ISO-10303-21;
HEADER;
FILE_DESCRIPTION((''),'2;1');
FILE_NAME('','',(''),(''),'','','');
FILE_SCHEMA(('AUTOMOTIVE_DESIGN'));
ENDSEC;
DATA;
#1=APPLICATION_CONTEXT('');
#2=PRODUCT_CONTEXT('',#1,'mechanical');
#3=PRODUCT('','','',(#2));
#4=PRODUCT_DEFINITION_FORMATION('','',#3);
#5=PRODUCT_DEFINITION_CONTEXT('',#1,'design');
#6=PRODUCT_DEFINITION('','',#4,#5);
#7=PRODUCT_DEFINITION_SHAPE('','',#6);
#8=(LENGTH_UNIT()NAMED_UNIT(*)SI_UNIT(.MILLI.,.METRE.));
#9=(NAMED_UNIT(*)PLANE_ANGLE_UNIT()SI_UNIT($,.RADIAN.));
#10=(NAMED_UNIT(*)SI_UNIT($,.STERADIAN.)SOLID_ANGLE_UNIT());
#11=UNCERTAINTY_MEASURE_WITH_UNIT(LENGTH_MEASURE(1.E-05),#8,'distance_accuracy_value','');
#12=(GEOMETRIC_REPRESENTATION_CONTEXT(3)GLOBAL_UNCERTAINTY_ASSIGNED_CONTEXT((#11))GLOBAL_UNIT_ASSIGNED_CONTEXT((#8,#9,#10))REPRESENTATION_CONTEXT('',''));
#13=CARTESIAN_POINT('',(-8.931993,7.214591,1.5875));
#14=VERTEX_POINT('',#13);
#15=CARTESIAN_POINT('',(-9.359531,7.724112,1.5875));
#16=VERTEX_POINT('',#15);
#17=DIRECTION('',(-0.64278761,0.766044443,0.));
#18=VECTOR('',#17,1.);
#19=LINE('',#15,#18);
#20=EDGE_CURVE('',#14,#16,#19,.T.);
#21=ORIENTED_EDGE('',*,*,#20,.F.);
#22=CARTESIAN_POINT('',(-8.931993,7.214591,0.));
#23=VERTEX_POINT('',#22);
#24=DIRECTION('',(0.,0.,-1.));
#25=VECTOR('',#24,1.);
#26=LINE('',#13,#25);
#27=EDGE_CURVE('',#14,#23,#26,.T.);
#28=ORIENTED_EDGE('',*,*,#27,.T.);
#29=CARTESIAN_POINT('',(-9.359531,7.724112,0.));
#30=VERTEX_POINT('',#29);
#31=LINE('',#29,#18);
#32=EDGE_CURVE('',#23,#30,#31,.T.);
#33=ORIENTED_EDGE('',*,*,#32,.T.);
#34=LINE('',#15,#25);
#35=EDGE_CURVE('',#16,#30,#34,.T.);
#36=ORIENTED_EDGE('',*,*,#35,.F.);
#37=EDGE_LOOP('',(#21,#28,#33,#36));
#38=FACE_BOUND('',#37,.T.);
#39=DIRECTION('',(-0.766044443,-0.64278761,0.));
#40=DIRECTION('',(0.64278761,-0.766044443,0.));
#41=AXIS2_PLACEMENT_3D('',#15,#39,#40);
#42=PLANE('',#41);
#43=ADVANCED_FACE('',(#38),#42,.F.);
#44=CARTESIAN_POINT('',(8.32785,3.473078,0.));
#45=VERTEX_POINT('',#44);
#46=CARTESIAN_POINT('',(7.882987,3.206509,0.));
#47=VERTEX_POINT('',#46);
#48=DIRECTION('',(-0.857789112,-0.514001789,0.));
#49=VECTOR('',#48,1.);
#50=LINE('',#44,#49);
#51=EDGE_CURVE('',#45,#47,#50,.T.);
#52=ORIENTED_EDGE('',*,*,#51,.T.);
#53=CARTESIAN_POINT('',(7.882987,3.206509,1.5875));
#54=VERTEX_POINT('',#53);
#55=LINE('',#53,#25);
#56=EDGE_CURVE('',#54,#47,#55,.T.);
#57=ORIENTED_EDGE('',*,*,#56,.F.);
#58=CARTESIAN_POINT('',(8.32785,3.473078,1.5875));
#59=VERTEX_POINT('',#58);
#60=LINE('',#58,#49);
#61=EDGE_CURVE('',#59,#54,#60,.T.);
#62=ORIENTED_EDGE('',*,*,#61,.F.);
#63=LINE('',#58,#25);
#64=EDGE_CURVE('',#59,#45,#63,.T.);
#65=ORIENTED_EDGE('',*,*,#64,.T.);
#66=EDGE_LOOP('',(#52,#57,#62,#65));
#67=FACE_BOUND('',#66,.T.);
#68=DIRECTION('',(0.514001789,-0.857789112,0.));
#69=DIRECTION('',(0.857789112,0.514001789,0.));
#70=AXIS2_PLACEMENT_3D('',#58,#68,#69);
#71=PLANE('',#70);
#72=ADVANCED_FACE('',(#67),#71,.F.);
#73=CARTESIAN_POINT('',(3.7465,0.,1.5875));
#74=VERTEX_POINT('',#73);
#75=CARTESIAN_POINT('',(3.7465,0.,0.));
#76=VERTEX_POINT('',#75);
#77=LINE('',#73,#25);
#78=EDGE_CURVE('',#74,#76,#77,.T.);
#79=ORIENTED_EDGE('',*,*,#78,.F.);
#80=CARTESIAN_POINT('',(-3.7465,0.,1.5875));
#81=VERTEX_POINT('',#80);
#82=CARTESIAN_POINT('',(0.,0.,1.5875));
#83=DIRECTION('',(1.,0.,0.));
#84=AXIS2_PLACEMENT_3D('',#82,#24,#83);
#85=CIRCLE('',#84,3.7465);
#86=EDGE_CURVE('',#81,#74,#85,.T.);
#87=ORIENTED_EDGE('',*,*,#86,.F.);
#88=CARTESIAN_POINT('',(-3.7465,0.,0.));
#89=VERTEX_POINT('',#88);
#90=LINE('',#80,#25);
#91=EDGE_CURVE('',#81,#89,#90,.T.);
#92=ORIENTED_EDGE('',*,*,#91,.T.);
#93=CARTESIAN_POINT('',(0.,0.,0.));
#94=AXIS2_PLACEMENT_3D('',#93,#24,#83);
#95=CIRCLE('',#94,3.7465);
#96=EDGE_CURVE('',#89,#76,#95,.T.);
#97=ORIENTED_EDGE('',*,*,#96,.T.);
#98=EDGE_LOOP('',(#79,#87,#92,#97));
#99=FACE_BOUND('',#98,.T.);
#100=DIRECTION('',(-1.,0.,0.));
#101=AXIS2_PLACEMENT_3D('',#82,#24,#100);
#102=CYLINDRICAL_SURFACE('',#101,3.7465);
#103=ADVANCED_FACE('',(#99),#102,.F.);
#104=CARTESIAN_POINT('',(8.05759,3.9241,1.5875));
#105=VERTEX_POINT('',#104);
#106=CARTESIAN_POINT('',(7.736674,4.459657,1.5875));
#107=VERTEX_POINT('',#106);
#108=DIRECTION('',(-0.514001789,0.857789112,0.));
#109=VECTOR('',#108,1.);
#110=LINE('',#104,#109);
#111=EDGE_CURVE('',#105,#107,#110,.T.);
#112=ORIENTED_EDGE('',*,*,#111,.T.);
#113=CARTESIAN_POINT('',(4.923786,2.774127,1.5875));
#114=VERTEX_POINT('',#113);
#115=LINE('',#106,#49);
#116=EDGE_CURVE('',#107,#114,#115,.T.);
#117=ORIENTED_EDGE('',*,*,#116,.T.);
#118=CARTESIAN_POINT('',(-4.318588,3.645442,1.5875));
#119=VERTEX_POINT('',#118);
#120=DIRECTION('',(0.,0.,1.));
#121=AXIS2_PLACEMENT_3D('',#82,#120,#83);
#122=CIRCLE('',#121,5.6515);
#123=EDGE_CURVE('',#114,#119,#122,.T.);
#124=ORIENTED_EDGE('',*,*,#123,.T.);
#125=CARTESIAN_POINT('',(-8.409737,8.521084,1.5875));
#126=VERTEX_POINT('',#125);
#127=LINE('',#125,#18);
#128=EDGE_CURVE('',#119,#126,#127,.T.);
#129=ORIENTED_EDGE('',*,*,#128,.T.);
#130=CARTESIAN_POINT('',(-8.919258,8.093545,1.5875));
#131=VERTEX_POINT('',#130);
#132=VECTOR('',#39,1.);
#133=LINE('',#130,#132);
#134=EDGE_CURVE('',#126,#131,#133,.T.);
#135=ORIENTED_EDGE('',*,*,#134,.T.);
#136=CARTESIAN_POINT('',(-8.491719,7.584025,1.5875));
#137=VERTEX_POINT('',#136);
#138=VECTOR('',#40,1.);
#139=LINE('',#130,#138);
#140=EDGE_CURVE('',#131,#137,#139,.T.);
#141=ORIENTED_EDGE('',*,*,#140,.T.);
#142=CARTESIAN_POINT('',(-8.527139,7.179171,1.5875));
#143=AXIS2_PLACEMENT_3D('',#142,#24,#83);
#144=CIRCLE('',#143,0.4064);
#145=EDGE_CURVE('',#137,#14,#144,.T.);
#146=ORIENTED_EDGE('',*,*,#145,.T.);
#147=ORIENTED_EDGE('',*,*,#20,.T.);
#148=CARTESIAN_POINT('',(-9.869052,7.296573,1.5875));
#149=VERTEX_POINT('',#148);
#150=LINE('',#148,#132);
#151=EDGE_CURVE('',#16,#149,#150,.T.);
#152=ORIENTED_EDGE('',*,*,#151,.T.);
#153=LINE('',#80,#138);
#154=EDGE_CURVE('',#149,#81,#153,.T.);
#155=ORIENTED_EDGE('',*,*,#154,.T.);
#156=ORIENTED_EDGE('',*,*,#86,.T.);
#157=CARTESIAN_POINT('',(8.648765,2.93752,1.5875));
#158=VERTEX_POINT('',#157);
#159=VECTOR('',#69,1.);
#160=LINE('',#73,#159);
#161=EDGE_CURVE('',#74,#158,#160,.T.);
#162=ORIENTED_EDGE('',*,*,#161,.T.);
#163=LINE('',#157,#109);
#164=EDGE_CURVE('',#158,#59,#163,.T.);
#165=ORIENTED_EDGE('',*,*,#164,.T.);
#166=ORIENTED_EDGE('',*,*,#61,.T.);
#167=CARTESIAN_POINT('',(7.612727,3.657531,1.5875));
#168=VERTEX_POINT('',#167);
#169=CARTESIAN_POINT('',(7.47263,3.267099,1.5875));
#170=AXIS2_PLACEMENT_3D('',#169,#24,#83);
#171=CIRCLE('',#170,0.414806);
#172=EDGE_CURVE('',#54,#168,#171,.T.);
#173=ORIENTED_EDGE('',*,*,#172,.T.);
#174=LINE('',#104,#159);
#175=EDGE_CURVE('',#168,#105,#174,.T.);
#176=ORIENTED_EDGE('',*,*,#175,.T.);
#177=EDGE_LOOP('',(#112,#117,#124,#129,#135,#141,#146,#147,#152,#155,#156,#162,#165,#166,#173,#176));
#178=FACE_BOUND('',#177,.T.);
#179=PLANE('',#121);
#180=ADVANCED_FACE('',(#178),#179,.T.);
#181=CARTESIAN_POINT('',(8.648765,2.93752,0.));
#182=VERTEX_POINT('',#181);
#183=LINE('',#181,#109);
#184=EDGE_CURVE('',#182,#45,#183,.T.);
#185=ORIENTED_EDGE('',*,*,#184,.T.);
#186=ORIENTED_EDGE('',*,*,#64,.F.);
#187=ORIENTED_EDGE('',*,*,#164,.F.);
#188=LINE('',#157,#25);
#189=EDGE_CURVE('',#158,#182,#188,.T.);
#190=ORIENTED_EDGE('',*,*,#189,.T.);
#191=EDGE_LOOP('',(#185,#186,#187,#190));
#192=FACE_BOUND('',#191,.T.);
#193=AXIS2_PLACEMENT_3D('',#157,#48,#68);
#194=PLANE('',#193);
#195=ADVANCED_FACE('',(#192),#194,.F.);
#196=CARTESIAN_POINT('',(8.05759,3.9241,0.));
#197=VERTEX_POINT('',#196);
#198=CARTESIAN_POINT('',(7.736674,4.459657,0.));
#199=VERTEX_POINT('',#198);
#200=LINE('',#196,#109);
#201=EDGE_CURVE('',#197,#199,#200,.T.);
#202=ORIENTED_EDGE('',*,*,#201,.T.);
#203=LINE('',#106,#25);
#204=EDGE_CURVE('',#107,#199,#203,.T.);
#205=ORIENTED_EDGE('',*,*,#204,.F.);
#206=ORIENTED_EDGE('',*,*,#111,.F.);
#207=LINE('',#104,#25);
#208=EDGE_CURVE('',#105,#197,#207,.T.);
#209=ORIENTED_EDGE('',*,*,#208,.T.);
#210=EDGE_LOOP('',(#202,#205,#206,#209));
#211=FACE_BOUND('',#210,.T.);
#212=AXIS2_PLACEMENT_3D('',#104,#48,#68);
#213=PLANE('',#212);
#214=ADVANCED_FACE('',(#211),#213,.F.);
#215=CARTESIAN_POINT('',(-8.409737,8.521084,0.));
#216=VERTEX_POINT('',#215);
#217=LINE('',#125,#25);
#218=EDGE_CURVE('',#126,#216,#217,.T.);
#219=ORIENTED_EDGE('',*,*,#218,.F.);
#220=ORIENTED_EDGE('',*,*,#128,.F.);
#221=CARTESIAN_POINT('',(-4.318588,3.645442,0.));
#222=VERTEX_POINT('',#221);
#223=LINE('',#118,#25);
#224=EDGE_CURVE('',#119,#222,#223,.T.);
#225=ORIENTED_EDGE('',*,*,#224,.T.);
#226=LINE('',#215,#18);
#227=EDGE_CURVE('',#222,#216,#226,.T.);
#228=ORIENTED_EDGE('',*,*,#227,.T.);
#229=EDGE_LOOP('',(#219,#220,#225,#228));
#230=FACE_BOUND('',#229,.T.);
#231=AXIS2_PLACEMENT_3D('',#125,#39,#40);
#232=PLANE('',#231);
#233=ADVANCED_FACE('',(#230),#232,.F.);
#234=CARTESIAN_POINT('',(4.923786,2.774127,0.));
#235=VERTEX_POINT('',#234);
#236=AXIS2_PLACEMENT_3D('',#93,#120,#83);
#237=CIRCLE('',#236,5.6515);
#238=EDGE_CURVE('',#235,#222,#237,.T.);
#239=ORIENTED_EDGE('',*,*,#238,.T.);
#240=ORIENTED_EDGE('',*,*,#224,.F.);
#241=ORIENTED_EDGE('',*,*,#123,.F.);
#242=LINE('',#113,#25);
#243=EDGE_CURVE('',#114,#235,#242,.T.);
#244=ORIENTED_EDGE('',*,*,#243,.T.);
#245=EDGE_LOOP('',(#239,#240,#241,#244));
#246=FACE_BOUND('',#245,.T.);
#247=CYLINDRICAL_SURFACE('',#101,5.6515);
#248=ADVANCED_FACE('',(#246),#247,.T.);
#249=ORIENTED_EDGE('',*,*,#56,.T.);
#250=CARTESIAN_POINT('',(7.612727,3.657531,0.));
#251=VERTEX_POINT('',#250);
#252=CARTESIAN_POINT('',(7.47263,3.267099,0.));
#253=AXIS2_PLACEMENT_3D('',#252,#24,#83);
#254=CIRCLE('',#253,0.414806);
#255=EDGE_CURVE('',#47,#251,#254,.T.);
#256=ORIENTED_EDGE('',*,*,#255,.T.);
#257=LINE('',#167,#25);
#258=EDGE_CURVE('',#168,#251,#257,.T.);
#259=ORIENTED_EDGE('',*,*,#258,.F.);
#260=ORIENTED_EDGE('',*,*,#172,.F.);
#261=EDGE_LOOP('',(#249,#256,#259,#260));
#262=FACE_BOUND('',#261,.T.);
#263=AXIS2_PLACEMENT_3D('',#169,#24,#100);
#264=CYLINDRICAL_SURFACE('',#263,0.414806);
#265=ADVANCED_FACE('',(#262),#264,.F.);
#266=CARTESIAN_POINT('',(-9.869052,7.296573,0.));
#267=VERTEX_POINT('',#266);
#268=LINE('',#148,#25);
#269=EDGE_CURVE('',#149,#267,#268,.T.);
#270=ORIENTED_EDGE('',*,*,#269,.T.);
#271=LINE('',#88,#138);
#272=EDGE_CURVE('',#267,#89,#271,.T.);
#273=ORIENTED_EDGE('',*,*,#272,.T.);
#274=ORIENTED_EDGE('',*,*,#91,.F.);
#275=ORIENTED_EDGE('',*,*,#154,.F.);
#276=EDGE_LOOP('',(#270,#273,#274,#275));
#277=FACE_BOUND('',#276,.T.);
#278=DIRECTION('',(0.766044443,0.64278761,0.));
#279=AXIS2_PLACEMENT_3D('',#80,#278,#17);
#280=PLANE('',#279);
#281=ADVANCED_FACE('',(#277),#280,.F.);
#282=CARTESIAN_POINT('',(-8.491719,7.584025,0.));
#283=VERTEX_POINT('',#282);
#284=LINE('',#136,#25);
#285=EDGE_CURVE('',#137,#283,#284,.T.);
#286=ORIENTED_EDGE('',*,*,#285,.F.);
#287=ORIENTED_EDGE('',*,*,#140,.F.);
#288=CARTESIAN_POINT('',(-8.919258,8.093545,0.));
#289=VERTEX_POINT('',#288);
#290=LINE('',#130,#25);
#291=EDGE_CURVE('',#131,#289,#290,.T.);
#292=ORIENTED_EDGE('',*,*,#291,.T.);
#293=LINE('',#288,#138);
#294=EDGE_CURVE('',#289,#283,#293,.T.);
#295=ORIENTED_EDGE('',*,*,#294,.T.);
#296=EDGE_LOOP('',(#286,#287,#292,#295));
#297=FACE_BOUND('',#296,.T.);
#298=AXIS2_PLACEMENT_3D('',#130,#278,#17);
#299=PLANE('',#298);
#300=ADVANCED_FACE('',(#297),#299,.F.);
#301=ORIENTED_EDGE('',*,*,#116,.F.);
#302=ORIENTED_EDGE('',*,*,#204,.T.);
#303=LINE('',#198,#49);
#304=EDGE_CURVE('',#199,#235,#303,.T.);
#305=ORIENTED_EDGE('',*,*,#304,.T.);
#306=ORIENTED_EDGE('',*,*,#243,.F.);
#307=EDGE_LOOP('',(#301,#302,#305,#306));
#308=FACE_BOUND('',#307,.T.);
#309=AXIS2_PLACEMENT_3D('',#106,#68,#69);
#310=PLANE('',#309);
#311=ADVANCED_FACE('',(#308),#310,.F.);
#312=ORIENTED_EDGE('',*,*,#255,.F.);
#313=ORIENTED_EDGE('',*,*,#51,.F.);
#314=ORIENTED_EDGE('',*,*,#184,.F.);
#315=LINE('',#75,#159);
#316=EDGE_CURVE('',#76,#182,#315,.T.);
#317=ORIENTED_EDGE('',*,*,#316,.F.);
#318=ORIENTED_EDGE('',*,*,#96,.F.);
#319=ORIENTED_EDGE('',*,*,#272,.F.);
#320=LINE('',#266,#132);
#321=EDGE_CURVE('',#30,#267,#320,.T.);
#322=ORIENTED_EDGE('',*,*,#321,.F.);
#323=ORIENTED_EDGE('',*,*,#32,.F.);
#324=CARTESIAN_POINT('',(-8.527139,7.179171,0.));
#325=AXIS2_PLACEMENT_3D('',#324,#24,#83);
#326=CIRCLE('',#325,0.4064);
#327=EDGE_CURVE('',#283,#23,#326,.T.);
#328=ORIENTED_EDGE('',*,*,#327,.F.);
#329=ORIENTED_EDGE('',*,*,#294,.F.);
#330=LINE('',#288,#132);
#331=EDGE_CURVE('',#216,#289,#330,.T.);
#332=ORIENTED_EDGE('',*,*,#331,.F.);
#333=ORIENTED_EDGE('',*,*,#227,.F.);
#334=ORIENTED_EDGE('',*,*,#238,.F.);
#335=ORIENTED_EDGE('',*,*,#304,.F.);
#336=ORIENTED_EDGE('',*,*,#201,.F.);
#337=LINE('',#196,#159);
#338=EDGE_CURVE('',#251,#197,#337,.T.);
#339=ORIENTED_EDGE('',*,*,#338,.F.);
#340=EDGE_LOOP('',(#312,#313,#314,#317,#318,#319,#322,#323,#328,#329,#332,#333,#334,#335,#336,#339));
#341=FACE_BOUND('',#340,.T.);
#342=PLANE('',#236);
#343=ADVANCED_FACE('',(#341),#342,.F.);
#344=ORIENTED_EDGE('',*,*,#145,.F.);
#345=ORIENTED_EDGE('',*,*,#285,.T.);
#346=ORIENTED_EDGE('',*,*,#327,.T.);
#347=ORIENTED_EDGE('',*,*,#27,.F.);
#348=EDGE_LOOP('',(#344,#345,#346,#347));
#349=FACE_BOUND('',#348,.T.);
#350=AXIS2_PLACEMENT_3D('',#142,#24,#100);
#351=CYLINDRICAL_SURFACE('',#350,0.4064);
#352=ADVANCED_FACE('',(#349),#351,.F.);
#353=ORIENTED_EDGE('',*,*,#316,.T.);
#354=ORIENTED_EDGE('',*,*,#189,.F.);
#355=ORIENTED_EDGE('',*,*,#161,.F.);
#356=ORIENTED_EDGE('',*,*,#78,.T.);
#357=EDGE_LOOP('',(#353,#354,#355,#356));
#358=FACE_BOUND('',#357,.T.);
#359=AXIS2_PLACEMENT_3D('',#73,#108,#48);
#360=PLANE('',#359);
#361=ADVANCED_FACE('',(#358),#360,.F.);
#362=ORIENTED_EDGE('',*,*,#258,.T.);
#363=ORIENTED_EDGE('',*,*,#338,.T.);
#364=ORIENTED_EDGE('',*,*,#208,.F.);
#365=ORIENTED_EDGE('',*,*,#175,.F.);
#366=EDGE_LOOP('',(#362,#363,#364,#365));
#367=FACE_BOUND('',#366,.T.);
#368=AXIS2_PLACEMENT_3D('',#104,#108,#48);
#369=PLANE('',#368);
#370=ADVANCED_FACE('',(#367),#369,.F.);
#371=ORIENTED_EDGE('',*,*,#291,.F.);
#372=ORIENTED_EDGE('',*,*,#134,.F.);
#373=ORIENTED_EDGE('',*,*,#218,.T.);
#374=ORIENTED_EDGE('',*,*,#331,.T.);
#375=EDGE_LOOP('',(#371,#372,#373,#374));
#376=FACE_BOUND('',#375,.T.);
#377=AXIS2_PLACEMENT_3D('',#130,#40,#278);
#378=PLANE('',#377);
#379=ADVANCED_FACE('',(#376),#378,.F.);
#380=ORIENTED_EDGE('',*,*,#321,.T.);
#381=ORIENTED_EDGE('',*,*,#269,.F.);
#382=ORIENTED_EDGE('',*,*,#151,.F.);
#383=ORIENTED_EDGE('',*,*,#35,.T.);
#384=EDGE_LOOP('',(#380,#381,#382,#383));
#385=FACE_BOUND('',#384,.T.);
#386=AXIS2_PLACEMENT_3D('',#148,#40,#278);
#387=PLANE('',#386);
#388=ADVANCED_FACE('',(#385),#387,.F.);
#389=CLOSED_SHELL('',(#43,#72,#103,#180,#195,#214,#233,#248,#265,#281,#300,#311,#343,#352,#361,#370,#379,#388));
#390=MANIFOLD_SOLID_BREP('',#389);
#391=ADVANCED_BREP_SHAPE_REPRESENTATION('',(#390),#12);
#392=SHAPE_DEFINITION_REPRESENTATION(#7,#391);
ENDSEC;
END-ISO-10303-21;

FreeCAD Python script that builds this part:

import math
import FreeCAD as App
import Part
import Sketcher

V = App.Vector
Q = App.Units.Quantity

doc = App.newDocument("Part")
body = doc.addObject("PartDesign::Body", "Body")

sketch1 = body.newObject("Sketcher::SketchObject", "Sketch")
sketch1.AttachmentSupport = (doc.getObject("XY_Plane"), [""])
sketch1.MapMode = "FlatFace"
sketch1.addGeometry([
    Part.LineSegment(V(-9.87, 7.3, 0), V(-3.75, 0, 0)),
    Part.ArcOfCircle(Part.Circle(V(0, 0, 0), V(0, 0, 1), 3.75), math.radians(0), math.radians(180)),
    Part.LineSegment(V(3.75, 0, 0), V(8.65, 2.94, 0)),
    Part.LineSegment(V(8.65, 2.94, 0), V(8.33, 3.47, 0)),
    Part.LineSegment(V(8.33, 3.47, 0), V(7.88, 3.21, 0)),
    Part.ArcOfCircle(Part.Circle(V(7.47, 3.27, 0), V(0, 0, 1), 0.41), math.radians(70), math.radians(352)),
    Part.LineSegment(V(7.61, 3.66, 0), V(8.06, 3.92, 0)),
    Part.LineSegment(V(8.06, 3.92, 0), V(7.74, 4.46, 0)),
    Part.LineSegment(V(7.74, 4.46, 0), V(4.92, 2.77, 0)),
    Part.ArcOfCircle(Part.Circle(V(0, 0, 0), V(0, 0, 1), 5.65), math.radians(29), math.radians(140)),
    Part.LineSegment(V(-4.32, 3.65, 0), V(-8.41, 8.52, 0)),
    Part.LineSegment(V(-8.41, 8.52, 0), V(-8.92, 8.09, 0)),
    Part.LineSegment(V(-8.92, 8.09, 0), V(-8.49, 7.58, 0)),
    Part.ArcOfCircle(Part.Circle(V(-8.53, 7.18, 0), V(0, 0, 1), 0.41), math.radians(175), math.radians(445)),
    Part.LineSegment(V(-8.93, 7.21, 0), V(-9.36, 7.72, 0)),
    Part.LineSegment(V(-9.36, 7.72, 0), V(-9.87, 7.3, 0)),
], False)
sketch1.addConstraint([
    Sketcher.Constraint("Coincident", 0, 2, 1, 2),
    Sketcher.Constraint("Coincident", 1, 1, 2, 1),
    Sketcher.Constraint("Coincident", 2, 2, 3, 1),
    Sketcher.Constraint("Coincident", 3, 2, 4, 1),
    Sketcher.Constraint("Coincident", 4, 2, 5, 2),
    Sketcher.Constraint("Coincident", 5, 1, 6, 1),
    Sketcher.Constraint("Coincident", 6, 2, 7, 1),
    Sketcher.Constraint("Coincident", 7, 2, 8, 1),
    Sketcher.Constraint("Coincident", 8, 2, 9, 1),
    Sketcher.Constraint("Coincident", 9, 2, 10, 1),
    Sketcher.Constraint("Coincident", 10, 2, 11, 1),
    Sketcher.Constraint("Coincident", 11, 2, 12, 1),
    Sketcher.Constraint("Coincident", 12, 2, 13, 2),
    Sketcher.Constraint("Coincident", 13, 1, 14, 1),
    Sketcher.Constraint("Coincident", 14, 2, 15, 1),
    Sketcher.Constraint("Coincident", 15, 2, 0, 1),
    Sketcher.Constraint("Coincident", 1, 3, -1, 1),
    Sketcher.Constraint("Coincident", 9, 3, -1, 1),
    Sketcher.Constraint("PointOnObject", 0, 2, -1),
    Sketcher.Constraint("PointOnObject", 1, 1, -1),
    Sketcher.Constraint("Perpendicular", 2, 3),
    Sketcher.Constraint("Perpendicular", 3, 4),
    Sketcher.Constraint("Parallel", 4, 6),
    Sketcher.Constraint("Perpendicular", 6, 7),
    Sketcher.Constraint("Perpendicular", 7, 8),
    Sketcher.Constraint("Parallel", 0, 10),
    Sketcher.Constraint("Perpendicular", 10, 11),
    Sketcher.Constraint("Perpendicular", 11, 12),
    Sketcher.Constraint("Parallel", 12, 14),
    Sketcher.Constraint("Perpendicular", 14, 15),
    Sketcher.Constraint("Equal", 4, 6),
    Sketcher.Constraint("Equal", 3, 7),
    Sketcher.Constraint("Equal", 11, 12),
    Sketcher.Constraint("Equal", 12, 14),
    Sketcher.Constraint("Equal", 14, 15),
    Sketcher.Constraint("Angle", 0, Q("-50 deg")),
    Sketcher.Constraint("Radius", 13, Q("0.016 in")),
    Sketcher.Constraint("Radius", 1, Q("0.1475 in")),
    Sketcher.Constraint("Radius", 9, Q("0.2225 in")),
    Sketcher.Constraint("Distance", 0, Q("0.375 in")),
    Sketcher.Constraint("Distance", 2, Q("0.225 in")),
    Sketcher.Constraint("Radius", 5, Q("0.414806 mm")),
    Sketcher.Constraint("Distance", 10, Q("6.364698 mm")),
    Sketcher.Constraint("DistanceY", -1, 1, 5, 3, Q("3.267099 mm")),
    Sketcher.Constraint("DistanceY", -1, 1, 6, 2, Q("3.9241 mm")),
    Sketcher.Constraint("DistanceX", 8, 2, 4, 2, Q("2.959201 mm")),
    Sketcher.Constraint("Distance", 8, Q("3.27923 mm")),
    Sketcher.Constraint("Distance", 11, Q("0.665132 mm")),
    Sketcher.Constraint("DistanceX", -1, 1, 5, 3, Q("7.47263 mm")),
    Sketcher.Constraint("DistanceX", 13, 3, -1, 1, Q("8.527139 mm")),
])
pad1 = body.newObject("PartDesign::Pad", "Pad")
pad1.Profile = sketch1
pad1.Length = Q("0.0625 in")

doc.recompute()
